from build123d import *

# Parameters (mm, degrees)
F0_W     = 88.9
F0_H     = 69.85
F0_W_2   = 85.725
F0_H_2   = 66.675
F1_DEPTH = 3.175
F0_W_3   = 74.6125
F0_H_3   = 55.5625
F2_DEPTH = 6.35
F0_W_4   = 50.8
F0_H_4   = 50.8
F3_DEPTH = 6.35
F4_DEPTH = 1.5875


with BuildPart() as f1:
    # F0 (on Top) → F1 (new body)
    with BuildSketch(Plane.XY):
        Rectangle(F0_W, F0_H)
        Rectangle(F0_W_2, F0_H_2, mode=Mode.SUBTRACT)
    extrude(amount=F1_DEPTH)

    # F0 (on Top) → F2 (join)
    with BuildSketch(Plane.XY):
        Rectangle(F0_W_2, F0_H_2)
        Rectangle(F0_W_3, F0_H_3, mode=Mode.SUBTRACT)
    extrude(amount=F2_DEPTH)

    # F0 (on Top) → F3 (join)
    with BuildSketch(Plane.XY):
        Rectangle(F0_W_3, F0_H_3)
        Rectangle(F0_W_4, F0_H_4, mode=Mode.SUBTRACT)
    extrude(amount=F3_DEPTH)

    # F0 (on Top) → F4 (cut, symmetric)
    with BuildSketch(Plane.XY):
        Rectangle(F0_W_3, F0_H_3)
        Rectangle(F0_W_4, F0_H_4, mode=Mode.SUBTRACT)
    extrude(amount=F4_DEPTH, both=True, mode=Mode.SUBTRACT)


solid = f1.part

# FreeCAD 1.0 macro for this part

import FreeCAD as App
import Part
import Sketcher
Q = App.Units.Quantity

doc = App.newDocument("Part")
body = doc.addObject("PartDesign::Body", "Body")

sketch1 = body.newObject("Sketcher::SketchObject", "Sketch")
sketch1.AttachmentSupport = (doc.getObject("XY_Plane"), [""])
sketch1.MapMode = "FlatFace"
sketch1.addGeometry([
    Part.LineSegment(App.Vector(-44, 35, 0), App.Vector(-44, -35, 0)),
    Part.LineSegment(App.Vector(-44, -35, 0), App.Vector(44, -35, 0)),
    Part.LineSegment(App.Vector(44, -35, 0), App.Vector(44, 35, 0)),
    Part.LineSegment(App.Vector(44, 35, 0), App.Vector(-44, 35, 0)),
    Part.LineSegment(App.Vector(43, -33, 0), App.Vector(-43, -33, 0)),
    Part.LineSegment(App.Vector(-43, -33, 0), App.Vector(-43, 33, 0)),
    Part.LineSegment(App.Vector(-43, 33, 0), App.Vector(43, 33, 0)),
    Part.LineSegment(App.Vector(43, 33, 0), App.Vector(43, -33, 0)),
], False)
sketch1.addConstraint([
    Sketcher.Constraint("Coincident", 0, 2, 1, 1),
    Sketcher.Constraint("Coincident", 1, 2, 2, 1),
    Sketcher.Constraint("Coincident", 2, 2, 3, 1),
    Sketcher.Constraint("Coincident", 3, 2, 0, 1),
    Sketcher.Constraint("Coincident", 4, 2, 5, 1),
    Sketcher.Constraint("Coincident", 5, 2, 6, 1),
    Sketcher.Constraint("Coincident", 6, 2, 7, 1),
    Sketcher.Constraint("Coincident", 7, 2, 4, 1),
    Sketcher.Constraint("Vertical", 0),
    Sketcher.Constraint("Horizontal", 1),
    Sketcher.Constraint("Vertical", 2),
    Sketcher.Constraint("Horizontal", 3),
    Sketcher.Constraint("Horizontal", 4),
    Sketcher.Constraint("Vertical", 5),
    Sketcher.Constraint("Horizontal", 6),
    Sketcher.Constraint("Vertical", 7),
    Sketcher.Constraint("Symmetric", 0, 2, 2, 2, -1, 1),
    Sketcher.Constraint("Symmetric", 4, 2, 6, 2, -1, 1),
    Sketcher.Constraint("DistanceX", 1, 1, 1, 2, Q("3.5 in")),
    Sketcher.Constraint("DistanceY", 0, 2, 0, 1, Q("2.75 in")),
    Sketcher.Constraint("DistanceX", 4, 2, 4, 1, Q("3.375 in")),
    Sketcher.Constraint("DistanceY", 5, 1, 5, 2, Q("2.625 in")),
])
pad1 = body.newObject("PartDesign::Pad", "Pad")
pad1.Profile = sketch1
pad1.Length = Q("0.125 in")

sketch2 = body.newObject("Sketcher::SketchObject", "Sketch001")
sketch2.AttachmentSupport = (doc.getObject("XY_Plane"), [""])
sketch2.MapMode = "FlatFace"
sketch2.addGeometry([
    Part.LineSegment(App.Vector(-43, 33, 0), App.Vector(-43, -33, 0)),
    Part.LineSegment(App.Vector(-43, -33, 0), App.Vector(43, -33, 0)),
    Part.LineSegment(App.Vector(43, -33, 0), App.Vector(43, 33, 0)),
    Part.LineSegment(App.Vector(43, 33, 0), App.Vector(-43, 33, 0)),
    Part.LineSegment(App.Vector(37, -28, 0), App.Vector(-37, -28, 0)),
    Part.LineSegment(App.Vector(-37, -28, 0), App.Vector(-37, 28, 0)),
    Part.LineSegment(App.Vector(-37, 28, 0), App.Vector(37, 28, 0)),
    Part.LineSegment(App.Vector(37, 28, 0), App.Vector(37, -28, 0)),
], False)
sketch2.addConstraint([
    Sketcher.Constraint("Coincident", 0, 2, 1, 1),
    Sketcher.Constraint("Coincident", 1, 2, 2, 1),
    Sketcher.Constraint("Coincident", 2, 2, 3, 1),
    Sketcher.Constraint("Coincident", 3, 2, 0, 1),
    Sketcher.Constraint("Coincident", 4, 2, 5, 1),
    Sketcher.Constraint("Coincident", 5, 2, 6, 1),
    Sketcher.Constraint("Coincident", 6, 2, 7, 1),
    Sketcher.Constraint("Coincident", 7, 2, 4, 1),
    Sketcher.Constraint("Vertical", 0),
    Sketcher.Constraint("Horizontal", 1),
    Sketcher.Constraint("Vertical", 2),
    Sketcher.Constraint("Horizontal", 3),
    Sketcher.Constraint("Horizontal", 4),
    Sketcher.Constraint("Vertical", 5),
    Sketcher.Constraint("Horizontal", 6),
    Sketcher.Constraint("Vertical", 7),
    Sketcher.Constraint("Symmetric", 0, 2, 2, 2, -1, 1),
    Sketcher.Constraint("Symmetric", 4, 2, 6, 2, -1, 1),
    Sketcher.Constraint("DistanceX", 1, 1, 1, 2, Q("3.375 in")),
    Sketcher.Constraint("DistanceX", 4, 2, 4, 1, Q("2.9375 in")),
    Sketcher.Constraint("DistanceY", 0, 2, 0, 1, Q("2.625 in")),
    Sketcher.Constraint("DistanceY", 5, 1, 5, 2, Q("2.1875 in")),
])
pad2 = body.newObject("PartDesign::Pad", "Pad001")
pad2.Profile = sketch2
pad2.Length = Q("0.25 in")

sketch3 = body.newObject("Sketcher::SketchObject", "Sketch002")
sketch3.AttachmentSupport = (doc.getObject("XY_Plane"), [""])
sketch3.MapMode = "FlatFace"
sketch3.addGeometry([
    Part.LineSegment(App.Vector(-37, 28, 0), App.Vector(-37, -28, 0)),
    Part.LineSegment(App.Vector(-37, -28, 0), App.Vector(37, -28, 0)),
    Part.LineSegment(App.Vector(37, -28, 0), App.Vector(37, 28, 0)),
    Part.LineSegment(App.Vector(37, 28, 0), App.Vector(-37, 28, 0)),
    Part.LineSegment(App.Vector(25, -25, 0), App.Vector(-25, -25, 0)),
    Part.LineSegment(App.Vector(-25, -25, 0), App.Vector(-25, 25, 0)),
    Part.LineSegment(App.Vector(-25, 25, 0), App.Vector(25, 25, 0)),
    Part.LineSegment(App.Vector(25, 25, 0), App.Vector(25, -25, 0)),
], False)
sketch3.addConstraint([
    Sketcher.Constraint("Coincident", 0, 2, 1, 1),
    Sketcher.Constraint("Coincident", 1, 2, 2, 1),
    Sketcher.Constraint("Coincident", 2, 2, 3, 1),
    Sketcher.Constraint("Coincident", 3, 2, 0, 1),
    Sketcher.Constraint("Coincident", 4, 2, 5, 1),
    Sketcher.Constraint("Coincident", 5, 2, 6, 1),
    Sketcher.Constraint("Coincident", 6, 2, 7, 1),
    Sketcher.Constraint("Coincident", 7, 2, 4, 1),
    Sketcher.Constraint("Vertical", 0),
    Sketcher.Constraint("Horizontal", 1),
    Sketcher.Constraint("Vertical", 2),
    Sketcher.Constraint("Horizontal", 3),
    Sketcher.Constraint("Horizontal", 4),
    Sketcher.Constraint("Vertical", 5),
    Sketcher.Constraint("Horizontal", 6),
    Sketcher.Constraint("Vertical", 7),
    Sketcher.Constraint("Symmetric", 0, 2, 2, 2, -1, 1),
    Sketcher.Constraint("Symmetric", 4, 2, 6, 2, -1, 1),
    Sketcher.Constraint("Equal", 6, 5),
    Sketcher.Constraint("DistanceX", 4, 2, 4, 1, Q("2 in")),
    Sketcher.Constraint("DistanceX", 1, 1, 1, 2, Q("2.9375 in")),
    Sketcher.Constraint("DistanceY", 0, 2, 0, 1, Q("2.1875 in")),
])
pad3 = body.newObject("PartDesign::Pad", "Pad002")
pad3.Profile = sketch3
pad3.Length = Q("0.25 in")

sketch4 = body.newObject("Sketcher::SketchObject", "Sketch003")
sketch4.AttachmentSupport = (doc.getObject("XY_Plane"), [""])
sketch4.MapMode = "FlatFace"
sketch4.addGeometry([
    Part.LineSegment(App.Vector(-37, 28, 0), App.Vector(-37, -28, 0)),
    Part.LineSegment(App.Vector(-37, -28, 0), App.Vector(37, -28, 0)),
    Part.LineSegment(App.Vector(37, -28, 0), App.Vector(37, 28, 0)),
    Part.LineSegment(App.Vector(37, 28, 0), App.Vector(-37, 28, 0)),
    Part.LineSegment(App.Vector(25, -25, 0), App.Vector(-25, -25, 0)),
    Part.LineSegment(App.Vector(-25, -25, 0), App.Vector(-25, 25, 0)),
    Part.LineSegment(App.Vector(-25, 25, 0), App.Vector(25, 25, 0)),
    Part.LineSegment(App.Vector(25, 25, 0), App.Vector(25, -25, 0)),
], False)
sketch4.addConstraint([
    Sketcher.Constraint("Coincident", 0, 2, 1, 1),
    Sketcher.Constraint("Coincident", 1, 2, 2, 1),
    Sketcher.Constraint("Coincident", 2, 2, 3, 1),
    Sketcher.Constraint("Coincident", 3, 2, 0, 1),
    Sketcher.Constraint("Coincident", 4, 2, 5, 1),
    Sketcher.Constraint("Coincident", 5, 2, 6, 1),
    Sketcher.Constraint("Coincident", 6, 2, 7, 1),
    Sketcher.Constraint("Coincident", 7, 2, 4, 1),
    Sketcher.Constraint("Vertical", 0),
    Sketcher.Constraint("Horizontal", 1),
    Sketcher.Constraint("Vertical", 2),
    Sketcher.Constraint("Horizontal", 3),
    Sketcher.Constraint("Horizontal", 4),
    Sketcher.Constraint("Vertical", 5),
    Sketcher.Constraint("Horizontal", 6),
    Sketcher.Constraint("Vertical", 7),
    Sketcher.Constraint("Symmetric", 0, 2, 2, 2, -1, 1),
    Sketcher.Constraint("Symmetric", 4, 2, 6, 2, -1, 1),
    Sketcher.Constraint("Equal", 6, 5),
    Sketcher.Constraint("DistanceX", 4, 2, 4, 1, Q("2 in")),
    Sketcher.Constraint("DistanceX", 1, 1, 1, 2, Q("2.9375 in")),
    Sketcher.Constraint("DistanceY", 0, 2, 0, 1, Q("2.1875 in")),
])
pocket1 = body.newObject("PartDesign::Pocket", "Pocket")
pocket1.Profile = sketch4
pocket1.Length = Q("0.125 in")
pocket1.Midplane = True

doc.recompute()
